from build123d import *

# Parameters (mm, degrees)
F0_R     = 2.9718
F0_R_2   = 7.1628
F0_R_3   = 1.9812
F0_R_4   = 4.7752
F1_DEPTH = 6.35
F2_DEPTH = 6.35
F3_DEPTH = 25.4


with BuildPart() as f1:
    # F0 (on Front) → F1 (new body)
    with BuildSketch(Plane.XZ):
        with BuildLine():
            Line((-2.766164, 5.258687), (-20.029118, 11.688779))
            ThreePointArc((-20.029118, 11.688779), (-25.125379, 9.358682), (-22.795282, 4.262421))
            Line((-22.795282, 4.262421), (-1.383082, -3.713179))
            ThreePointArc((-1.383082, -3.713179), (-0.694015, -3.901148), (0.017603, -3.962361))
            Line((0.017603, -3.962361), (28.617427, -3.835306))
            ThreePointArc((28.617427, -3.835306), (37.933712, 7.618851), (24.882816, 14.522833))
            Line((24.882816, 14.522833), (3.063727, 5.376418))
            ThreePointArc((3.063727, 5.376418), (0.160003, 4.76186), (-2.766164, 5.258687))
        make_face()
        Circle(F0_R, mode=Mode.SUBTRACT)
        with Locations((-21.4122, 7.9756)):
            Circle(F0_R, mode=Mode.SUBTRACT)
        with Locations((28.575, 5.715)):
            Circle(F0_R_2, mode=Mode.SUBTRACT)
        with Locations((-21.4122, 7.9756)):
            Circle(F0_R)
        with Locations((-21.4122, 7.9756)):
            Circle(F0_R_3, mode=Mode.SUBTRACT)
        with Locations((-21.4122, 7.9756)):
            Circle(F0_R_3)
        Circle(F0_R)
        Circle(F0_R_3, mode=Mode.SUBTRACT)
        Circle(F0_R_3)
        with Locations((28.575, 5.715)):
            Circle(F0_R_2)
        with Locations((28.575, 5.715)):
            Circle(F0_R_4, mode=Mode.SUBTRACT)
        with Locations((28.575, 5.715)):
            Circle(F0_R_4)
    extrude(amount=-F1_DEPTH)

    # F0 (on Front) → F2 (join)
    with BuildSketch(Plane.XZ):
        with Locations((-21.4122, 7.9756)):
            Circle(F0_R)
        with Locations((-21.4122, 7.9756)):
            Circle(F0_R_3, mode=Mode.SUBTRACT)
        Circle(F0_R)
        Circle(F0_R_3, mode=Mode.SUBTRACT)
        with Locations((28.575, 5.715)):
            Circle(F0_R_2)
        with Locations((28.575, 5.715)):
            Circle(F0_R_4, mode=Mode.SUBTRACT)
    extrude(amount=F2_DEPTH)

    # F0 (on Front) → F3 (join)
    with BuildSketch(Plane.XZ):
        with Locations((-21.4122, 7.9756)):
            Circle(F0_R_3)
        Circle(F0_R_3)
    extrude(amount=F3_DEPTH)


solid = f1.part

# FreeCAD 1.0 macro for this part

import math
import FreeCAD as App
import Part
import Sketcher
Q = App.Units.Quantity

doc = App.newDocument("Part")
body = doc.addObject("PartDesign::Body", "Body")

# Sketch on XZ plane
sketch1 = body.newObject("Sketcher::SketchObject", "Sketch")
sketch1.AttachmentSupport = (doc.getObject("XZ_Plane"), [""])
sketch1.MapMode = "FlatFace"
sketch1.addGeometry([
    Part.LineSegment(App.Vector(-2.766164, 5.258687, 0), App.Vector(-20.029118, 11.688779, 0)),  # 0
    Part.ArcOfCircle(Part.Circle(App.Vector(-21.4122, 7.9756, 0), App.Vector(0, 0, 1), 3.9624), math.radians(69.570683), math.radians(249.570683)),  # 1
    Part.LineSegment(App.Vector(-22.795282, 4.262421, 0), App.Vector(-1.383082, -3.713179, 0)),  # 2
    Part.ArcOfCircle(Part.Circle(App.Vector(0.000003, 0.000014, 0), App.Vector(0, 0, 1), 3.962414), math.radians(-110.429283), math.radians(-89.745501)),  # 3
    Part.LineSegment(App.Vector(0.017603, -3.962361, 0), App.Vector(28.617427, -3.835306, 0)),  # 4
    Part.ArcOfCircle(Part.Circle(App.Vector(28.575, 5.715, 0), App.Vector(0, 0, 1), 9.5504), math.radians(-89.745465), math.radians(112.7431)),  # 5
    Part.LineSegment(App.Vector(24.882816, 14.522833, 0), App.Vector(3.063727, 5.376418, 0)),  # 6
    Part.ArcOfCircle(Part.Circle(App.Vector(0, 12.685038, 0), App.Vector(0, 0, 1), 7.924794), math.radians(-110.429332), math.radians(-67.256878)),  # 7
], False)
sketch1.addConstraint([
    Sketcher.Constraint("Tangent", 0, 2, 1, 1),
    Sketcher.Constraint("Tangent", 1, 2, 2, 1),
    Sketcher.Constraint("Tangent", 2, 2, 3, 1),
    Sketcher.Constraint("Tangent", 3, 2, 4, 1),
    Sketcher.Constraint("Tangent", 4, 2, 5, 1),
    Sketcher.Constraint("Tangent", 5, 2, 6, 1),
    Sketcher.Constraint("Tangent", 6, 2, 7, 2),
    Sketcher.Constraint("Tangent", 7, 1, 0, 1),
    Sketcher.Constraint("PointOnObject", 7, 3, -2),
    Sketcher.Constraint("Parallel", 0, 2),
    Sketcher.Constraint("Radius", 1, Q("0.156 in")),
    Sketcher.Constraint("Radius", 5, Q("0.376 in")),
    Sketcher.Constraint("DistanceX", 1, 3, -1, 1, Q("0.843 in")),
    Sketcher.Constraint("DistanceY", -1, 1, 1, 3, Q("0.314 in")),
    Sketcher.Constraint("DistanceX", -1, 1, 5, 3, Q("1.125 in")),
    Sketcher.Constraint("DistanceY", -1, 1, 5, 3, Q("0.225 in")),
    Sketcher.Constraint("DistanceX", 1, 3, 3, 3, Q("0.8430001 in")),
    Sketcher.Constraint("DistanceX", 1, 2, 2, 2, Q("0.843 in")),
    Sketcher.Constraint("DistanceY", 2, 2, 1, 2, Q("0.314 in")),
    Sketcher.Constraint("Radius", 7, Q("7.924794 mm")),
])
pad1 = body.newObject("PartDesign::Pad", "Pad")
pad1.Profile = sketch1
pad1.Length = Q("0.25 in")
pad1.Reversed = True

# Sketch on XZ plane
sketch2 = body.newObject("Sketcher::SketchObject", "Sketch001")
sketch2.AttachmentSupport = (doc.getObject("XZ_Plane"), [""])
sketch2.MapMode = "FlatFace"
sketch2.addGeometry([
    Part.Circle(App.Vector(-21.4122, 7.9756, 0), App.Vector(0, 0, 1), 2.9718),  # 0
    Part.Circle(App.Vector(-21.4122, 7.9756, 0), App.Vector(0, 0, 1), 1.9812),  # 1
    Part.Circle(App.Vector(0, 0, 0), App.Vector(0, 0, 1), 2.9718),  # 2
    Part.Circle(App.Vector(0, 0, 0), App.Vector(0, 0, 1), 1.9812),  # 3
    Part.Circle(App.Vector(28.575, 5.715, 0), App.Vector(0, 0, 1), 7.1628),  # 4
    Part.Circle(App.Vector(28.575, 5.715, 0), App.Vector(0, 0, 1), 4.7752),  # 5
], False)
sketch2.addConstraint([
    Sketcher.Constraint("Coincident", 2, 3, -1, 1),
    Sketcher.Constraint("Coincident", 3, 3, -1, 1),
    Sketcher.Constraint("Coincident", 1, 3, 0, 3),
    Sketcher.Constraint("Coincident", 5, 3, 4, 3),
    Sketcher.Constraint("Equal", 0, 2),
    Sketcher.Constraint("Equal", 1, 3),
    Sketcher.Constraint("Diameter", 0, Q("0.234 in")),
    Sketcher.Constraint("Diameter", 1, Q("0.156 in")),
    Sketcher.Constraint("Diameter", 4, Q("0.564 in")),
    Sketcher.Constraint("Diameter", 5, Q("0.376 in")),
    Sketcher.Constraint("DistanceX", 0, 3, -1, 1, Q("0.843 in")),
    Sketcher.Constraint("DistanceY", -1, 1, 0, 3, Q("0.314 in")),
    Sketcher.Constraint("DistanceX", -1, 1, 4, 3, Q("1.125 in")),
    Sketcher.Constraint("DistanceY", -1, 1, 4, 3, Q("0.225 in")),
])
pad2 = body.newObject("PartDesign::Pad", "Pad001")
pad2.Profile = sketch2
pad2.Length = Q("0.25 in")

# Sketch on XZ plane
sketch3 = body.newObject("Sketcher::SketchObject", "Sketch002")
sketch3.AttachmentSupport = (doc.getObject("XZ_Plane"), [""])
sketch3.MapMode = "FlatFace"
sketch3.addGeometry([
    Part.Circle(App.Vector(-21.4122, 7.9756, 0), App.Vector(0, 0, 1), 1.9812),
    Part.Circle(App.Vector(0, 0, 0), App.Vector(0, 0, 1), 1.9812),
], False)
sketch3.addConstraint([
    Sketcher.Constraint("Coincident", 1, 3, -1, 1),
    Sketcher.Constraint("Equal", 0, 1),
    Sketcher.Constraint("Diameter", 0, Q("0.156 in")),
    Sketcher.Constraint("DistanceX", 0, 3, -1, 1, Q("0.843 in")),
    Sketcher.Constraint("DistanceY", -1, 1, 0, 3, Q("0.314 in")),
])
pad3 = body.newObject("PartDesign::Pad", "Pad002")
pad3.Profile = sketch3
pad3.Length = Q("1 in")

doc.recompute()
